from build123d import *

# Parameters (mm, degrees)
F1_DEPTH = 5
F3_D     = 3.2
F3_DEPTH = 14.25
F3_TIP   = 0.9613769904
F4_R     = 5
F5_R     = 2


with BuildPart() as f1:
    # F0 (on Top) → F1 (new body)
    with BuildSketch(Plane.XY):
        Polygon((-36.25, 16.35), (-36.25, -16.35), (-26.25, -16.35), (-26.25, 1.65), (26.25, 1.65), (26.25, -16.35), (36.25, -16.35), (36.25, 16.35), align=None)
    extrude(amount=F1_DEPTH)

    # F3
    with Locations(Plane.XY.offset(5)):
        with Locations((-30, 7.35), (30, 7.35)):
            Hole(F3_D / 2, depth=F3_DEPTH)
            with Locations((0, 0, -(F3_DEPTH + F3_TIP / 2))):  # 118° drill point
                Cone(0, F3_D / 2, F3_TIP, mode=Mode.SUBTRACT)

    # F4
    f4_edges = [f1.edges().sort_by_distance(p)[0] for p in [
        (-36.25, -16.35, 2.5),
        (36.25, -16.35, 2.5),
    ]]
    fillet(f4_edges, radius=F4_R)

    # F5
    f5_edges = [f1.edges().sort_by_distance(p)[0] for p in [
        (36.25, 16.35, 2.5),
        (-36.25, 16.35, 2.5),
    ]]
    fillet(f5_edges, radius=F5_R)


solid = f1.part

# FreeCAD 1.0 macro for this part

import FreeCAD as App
import Part
import Sketcher


def edges_at(feature, points):
    """Names of the edges that pass closest to the given points."""
    edges = feature.Shape.Edges
    near = lambda p: min(range(len(edges)), key=lambda i: edges[i].distToShape(Part.Vertex(*p))[0])
    return sorted({f"Edge{near(p) + 1}" for p in points})

doc = App.newDocument("Part")
body = doc.addObject("PartDesign::Body", "Body")

# Sketch on XY plane
sketch1 = doc.addObject("Sketcher::SketchObject", "Sketch")
body.addObject(sketch1)
sketch1.AttachmentSupport = (doc.XY_Plane, [""])
sketch1.MapMode = "FlatFace"
sketch1.addGeometry([
    Part.LineSegment(App.Vector(-36.25, 16.35, 0), App.Vector(-36.25, -16.35, 0)),  # 0
    Part.LineSegment(App.Vector(-36.25, -16.35, 0), App.Vector(-26.25, -16.35, 0)),  # 1
    Part.LineSegment(App.Vector(-26.25, -16.35, 0), App.Vector(-26.25, 1.65, 0)),  # 2
    Part.LineSegment(App.Vector(-26.25, 1.65, 0), App.Vector(26.25, 1.65, 0)),  # 3
    Part.LineSegment(App.Vector(26.25, 1.65, 0), App.Vector(26.25, -16.35, 0)),  # 4
    Part.LineSegment(App.Vector(26.25, -16.35, 0), App.Vector(36.25, -16.35, 0)),  # 5
    Part.LineSegment(App.Vector(36.25, -16.35, 0), App.Vector(36.25, 16.35, 0)),  # 6
    Part.LineSegment(App.Vector(36.25, 16.35, 0), App.Vector(-36.25, 16.35, 0)),  # 7
], False)
sketch1.addConstraint([
    Sketcher.Constraint("Coincident", 0, 2, 1, 1),
    Sketcher.Constraint("Coincident", 1, 2, 2, 1),
    Sketcher.Constraint("Coincident", 2, 2, 3, 1),
    Sketcher.Constraint("Coincident", 3, 2, 4, 1),
    Sketcher.Constraint("Coincident", 4, 2, 5, 1),
    Sketcher.Constraint("Coincident", 5, 2, 6, 1),
    Sketcher.Constraint("Coincident", 6, 2, 7, 1),
    Sketcher.Constraint("Coincident", 7, 2, 0, 1),
    Sketcher.Constraint("Vertical", 0),
    Sketcher.Constraint("Horizontal", 1),
    Sketcher.Constraint("Vertical", 2),
    Sketcher.Constraint("Horizontal", 3),
    Sketcher.Constraint("Vertical", 4),
    Sketcher.Constraint("Horizontal", 5),
    Sketcher.Constraint("Vertical", 6),
    Sketcher.Constraint("Horizontal", 7),
    Sketcher.Constraint("Symmetric", 0, 2, 6, 2, -1, 1),
    Sketcher.Constraint("Symmetric", 1, 2, 4, 2, -2),
    Sketcher.Constraint("DistanceX", 1, 1, 1, 2, 10.0),
    Sketcher.Constraint("DistanceY", 2, 1, 2, 2, 18.0),
    Sketcher.Constraint("DistanceX", 3, 1, 3, 2, 52.5),
    Sketcher.Constraint("DistanceY", 0, 2, 0, 1, 32.7),
])
pad1 = doc.addObject("PartDesign::Pad", "Pad")
body.addObject(pad1)
pad1.Profile = sketch1
pad1.Length = 5

# Sketch on XY plane
sketch2 = doc.addObject("Sketcher::SketchObject", "Sketch001")
body.addObject(sketch2)
sketch2.AttachmentSupport = (doc.XY_Plane, [""])
sketch2.MapMode = "FlatFace"
sketch2.AttachmentOffset = App.Placement(App.Vector(0, 0, 5), App.Rotation())
sketch2.addGeometry([
    Part.Circle(App.Vector(-30, 7.35, 0), App.Vector(0, 0, 1), 1.6),
    Part.Circle(App.Vector(30, 7.35, 0), App.Vector(0, 0, 1), 1.6),
], False)
sketch2.addConstraint([
    Sketcher.Constraint("Equal", 0, 1),
    Sketcher.Constraint("Symmetric", 0, 3, 1, 3, -2),
    Sketcher.Constraint("Diameter", 0, 3.2),
    Sketcher.Constraint("DistanceX", 0, 3, -1, 1, 30.0),
    Sketcher.Constraint("DistanceY", -1, 1, 0, 3, 7.35),
])
doc.recompute()
hole = doc.addObject("PartDesign::Hole", "Hole")
body.addObject(hole)
hole.Profile = sketch2
hole.ThreadType = "None"
hole.Diameter = 3.2
hole.DepthType = "Dimension"
hole.Depth = 14.25
hole.DrillPoint = "Angled"
hole.DrillPointAngle = 118
doc.recompute()

fillet = doc.addObject("PartDesign::Fillet", "Fillet")
body.addObject(fillet)
fillet.Base = (hole, edges_at(hole, [(-36.25, -16.35, 2.5), (36.25, -16.35, 2.5)]))
fillet.Radius = 5
doc.recompute()

fillet2 = doc.addObject("PartDesign::Fillet", "Fillet001")
body.addObject(fillet2)
fillet2.Base = (fillet, edges_at(fillet, [(36.25, 16.35, 2.5), (-36.25, 16.35, 2.5)]))
fillet2.Radius = 2

doc.recompute()
